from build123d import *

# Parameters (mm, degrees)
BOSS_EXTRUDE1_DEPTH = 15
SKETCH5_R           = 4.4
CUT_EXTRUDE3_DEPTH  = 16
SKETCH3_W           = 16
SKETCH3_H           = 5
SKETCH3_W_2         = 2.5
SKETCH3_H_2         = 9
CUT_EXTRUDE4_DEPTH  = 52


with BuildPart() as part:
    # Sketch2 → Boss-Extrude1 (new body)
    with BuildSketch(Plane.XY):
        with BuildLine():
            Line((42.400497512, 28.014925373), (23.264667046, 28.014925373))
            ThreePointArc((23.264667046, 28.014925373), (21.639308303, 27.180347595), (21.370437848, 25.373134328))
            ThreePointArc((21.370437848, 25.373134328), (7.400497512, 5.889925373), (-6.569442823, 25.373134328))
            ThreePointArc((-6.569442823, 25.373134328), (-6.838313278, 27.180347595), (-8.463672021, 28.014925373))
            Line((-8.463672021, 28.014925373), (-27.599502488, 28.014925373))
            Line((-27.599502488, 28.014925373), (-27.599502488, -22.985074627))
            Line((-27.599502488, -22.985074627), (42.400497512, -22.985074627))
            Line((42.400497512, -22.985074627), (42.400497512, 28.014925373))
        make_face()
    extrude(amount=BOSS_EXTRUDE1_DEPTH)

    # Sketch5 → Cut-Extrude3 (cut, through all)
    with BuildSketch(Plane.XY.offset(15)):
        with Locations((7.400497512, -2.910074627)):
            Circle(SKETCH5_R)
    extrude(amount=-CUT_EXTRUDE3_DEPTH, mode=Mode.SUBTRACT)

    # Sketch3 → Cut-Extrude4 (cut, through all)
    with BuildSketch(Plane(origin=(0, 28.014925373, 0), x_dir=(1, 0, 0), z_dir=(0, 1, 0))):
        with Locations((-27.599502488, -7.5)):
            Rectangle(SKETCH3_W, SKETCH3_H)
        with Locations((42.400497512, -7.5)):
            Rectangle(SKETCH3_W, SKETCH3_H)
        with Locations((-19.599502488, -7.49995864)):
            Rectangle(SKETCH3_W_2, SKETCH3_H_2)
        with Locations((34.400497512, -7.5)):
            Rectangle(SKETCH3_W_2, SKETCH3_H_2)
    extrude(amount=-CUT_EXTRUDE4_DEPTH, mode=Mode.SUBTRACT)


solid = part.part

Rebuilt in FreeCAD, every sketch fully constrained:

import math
import FreeCAD as App
import Part
import Sketcher
from FreeCAD import Vector
Q = App.Units.Quantity

doc = App.newDocument("Part")
body = doc.addObject("PartDesign::Body", "Body")

# Sketch on XY plane
sketch1 = doc.addObject("Sketcher::SketchObject", "Sketch")
body.addObject(sketch1)
sketch1.AttachmentSupport = (doc.XY_Plane, [""])
sketch1.MapMode = "FlatFace"
sketch1.addGeometry(Part.LineSegment(Vector(42.4, 28, 0), Vector(23.3, 28, 0)), False)
sketch1.addGeometry(Part.ArcOfCircle(Part.Circle(Vector(23.3, 26, 0), Vector(0, 0, 1), 2), math.radians(90), math.radians(199)), False)
sketch1.addGeometry(Part.ArcOfCircle(Part.Circle(Vector(7.4, 20.6, 0), Vector(0, 0, 1), 14.8), math.radians(161), math.radians(379)), False)
sketch1.addGeometry(Part.ArcOfCircle(Part.Circle(Vector(-8.5, 26, 0), Vector(0, 0, 1), 2), math.radians(-19), math.radians(90)), False)
sketch1.addGeometry(Part.LineSegment(Vector(-8.5, 28, 0), Vector(-27.6, 28, 0)), False)
sketch1.addGeometry(Part.LineSegment(Vector(-27.6, 28, 0), Vector(-27.6, -23, 0)), False)
sketch1.addGeometry(Part.LineSegment(Vector(-27.6, -23, 0), Vector(42.4, -23, 0)), False)
sketch1.addGeometry(Part.LineSegment(Vector(42.4, -23, 0), Vector(42.4, 28, 0)), False)
sketch1.addConstraint(Sketcher.Constraint("Tangent", 0, 2, 1, 1))
sketch1.addConstraint(Sketcher.Constraint("Tangent", 1, 2, 2, 2))
sketch1.addConstraint(Sketcher.Constraint("Tangent", 2, 1, 3, 1))
sketch1.addConstraint(Sketcher.Constraint("Tangent", 3, 2, 4, 1))
sketch1.addConstraint(Sketcher.Constraint("Coincident", 4, 2, 5, 1))
sketch1.addConstraint(Sketcher.Constraint("Coincident", 5, 2, 6, 1))
sketch1.addConstraint(Sketcher.Constraint("Coincident", 6, 2, 7, 1))
sketch1.addConstraint(Sketcher.Constraint("Coincident", 7, 2, 0, 1))
sketch1.addConstraint(Sketcher.Constraint("Horizontal", 0))
sketch1.addConstraint(Sketcher.Constraint("Horizontal", 4))
sketch1.addConstraint(Sketcher.Constraint("Vertical", 5))
sketch1.addConstraint(Sketcher.Constraint("Horizontal", 6))
sketch1.addConstraint(Sketcher.Constraint("Vertical", 7))
sketch1.addConstraint(Sketcher.Constraint("Equal", 1, 3))
sketch1.addConstraint(Sketcher.Constraint("Horizontal", 1, 3, 3, 3))
sketch1.addConstraint(Sketcher.Constraint("Equal", 0, 4))
sketch1.addConstraint(Sketcher.Constraint("Radius", 1, Q("2 mm")))
sketch1.addConstraint(Sketcher.Constraint("DistanceX", 6, 1, 6, 2, Q("70 mm")))
sketch1.addConstraint(Sketcher.Constraint("DistanceY", 5, 2, 5, 1, Q("51 mm")))
sketch1.addConstraint(Sketcher.Constraint("Radius", 2, Q("14.75 mm")))
sketch1.addConstraint(Sketcher.Constraint("DistanceY", 2, 3, 1, 3, Q("5.375 mm")))
sketch1.addConstraint(Sketcher.Constraint("DistanceX", -1, 1, 1, 3, Q("23.264667 mm")))
sketch1.addConstraint(Sketcher.Constraint("DistanceY", -1, 1, 1, 3, Q("26.014925 mm")))
pad1 = doc.addObject("PartDesign::Pad", "Pad")
body.addObject(pad1)
pad1.Profile = sketch1
pad1.Length = 15

# Sketch on XY plane
sketch2 = doc.addObject("Sketcher::SketchObject", "Sketch001")
body.addObject(sketch2)
sketch2.AttachmentSupport = (doc.XY_Plane, [""])
sketch2.MapMode = "FlatFace"
sketch2.AttachmentOffset = App.Placement(Vector(0, 0, 15), App.Rotation())
sketch2.addGeometry(Part.Circle(Vector(7.4, -2.9, 0), Vector(0, 0, 1), 4.4), False)
sketch2.addConstraint(Sketcher.Constraint("Diameter", 0, Q("8.8 mm")))
sketch2.addConstraint(Sketcher.Constraint("DistanceX", -1, 1, 0, 3, Q("7.400498 mm")))
sketch2.addConstraint(Sketcher.Constraint("DistanceY", 0, 3, -1, 1, Q("2.910075 mm")))
pocket1 = doc.addObject("PartDesign::Pocket", "Pocket")
body.addObject(pocket1)
pocket1.Profile = sketch2
pocket1.Type = "ThroughAll"

# Sketch on XZ plane
sketch3 = doc.addObject("Sketcher::SketchObject", "Sketch002")
body.addObject(sketch3)
sketch3.AttachmentSupport = (doc.XZ_Plane, [""])
sketch3.MapMode = "FlatFace"
sketch3.AttachmentOffset = App.Placement(Vector(0, 0, -28.014925), App.Rotation())
sketch3.addGeometry(Part.LineSegment(Vector(-35.6, 5, 0), Vector(-35.6, 10, 0)), False)
sketch3.addGeometry(Part.LineSegment(Vector(-35.6, 10, 0), Vector(-20.8, 10, 0)), False)
sketch3.addGeometry(Part.LineSegment(Vector(-20.8, 10, 0), Vector(-20.8, 12, 0)), False)
sketch3.addGeometry(Part.LineSegment(Vector(-20.8, 12, 0), Vector(-18.3, 12, 0)), False)
sketch3.addGeometry(Part.LineSegment(Vector(-18.3, 12, 0), Vector(-18.3, 3, 0)), False)
sketch3.addGeometry(Part.LineSegment(Vector(-18.3, 3, 0), Vector(-20.8, 3, 0)), False)
sketch3.addGeometry(Part.LineSegment(Vector(-20.8, 3, 0), Vector(-20.8, 5, 0)), False)
sketch3.addGeometry(Part.LineSegment(Vector(-20.8, 5, 0), Vector(-35.6, 5, 0)), False)
sketch3.addGeometry(Part.LineSegment(Vector(33.2, 3, 0), Vector(33.2, 12, 0)), False)
sketch3.addGeometry(Part.LineSegment(Vector(33.2, 12, 0), Vector(35.7, 12, 0)), False)
sketch3.addGeometry(Part.LineSegment(Vector(35.7, 12, 0), Vector(35.7, 10, 0)), False)
sketch3.addGeometry(Part.LineSegment(Vector(35.7, 10, 0), Vector(50.4, 10, 0)), False)
sketch3.addGeometry(Part.LineSegment(Vector(50.4, 10, 0), Vector(50.4, 5, 0)), False)
sketch3.addGeometry(Part.LineSegment(Vector(50.4, 5, 0), Vector(35.7, 5, 0)), False)
sketch3.addGeometry(Part.LineSegment(Vector(35.7, 5, 0), Vector(35.7, 3, 0)), False)
sketch3.addGeometry(Part.LineSegment(Vector(35.7, 3, 0), Vector(33.2, 3, 0)), False)
sketch3.addConstraint(Sketcher.Constraint("Coincident", 0, 2, 1, 1))
sketch3.addConstraint(Sketcher.Constraint("Coincident", 1, 2, 2, 1))
sketch3.addConstraint(Sketcher.Constraint("Coincident", 2, 2, 3, 1))
sketch3.addConstraint(Sketcher.Constraint("Coincident", 3, 2, 4, 1))
sketch3.addConstraint(Sketcher.Constraint("Coincident", 4, 2, 5, 1))
sketch3.addConstraint(Sketcher.Constraint("Coincident", 5, 2, 6, 1))
sketch3.addConstraint(Sketcher.Constraint("Coincident", 6, 2, 7, 1))
sketch3.addConstraint(Sketcher.Constraint("Coincident", 7, 2, 0, 1))
sketch3.addConstraint(Sketcher.Constraint("Coincident", 8, 2, 9, 1))
sketch3.addConstraint(Sketcher.Constraint("Coincident", 9, 2, 10, 1))
sketch3.addConstraint(Sketcher.Constraint("Coincident", 10, 2, 11, 1))
sketch3.addConstraint(Sketcher.Constraint("Coincident", 11, 2, 12, 1))
sketch3.addConstraint(Sketcher.Constraint("Coincident", 12, 2, 13, 1))
sketch3.addConstraint(Sketcher.Constraint("Coincident", 13, 2, 14, 1))
sketch3.addConstraint(Sketcher.Constraint("Coincident", 14, 2, 15, 1))
sketch3.addConstraint(Sketcher.Constraint("Coincident", 15, 2, 8, 1))
sketch3.addConstraint(Sketcher.Constraint("Vertical", 0))
sketch3.addConstraint(Sketcher.Constraint("Horizontal", 1))
sketch3.addConstraint(Sketcher.Constraint("Vertical", 2))
sketch3.addConstraint(Sketcher.Constraint("Horizontal", 3))
sketch3.addConstraint(Sketcher.Constraint("Vertical", 4))
sketch3.addConstraint(Sketcher.Constraint("Horizontal", 5))
sketch3.addConstraint(Sketcher.Constraint("Vertical", 6))
sketch3.addConstraint(Sketcher.Constraint("Horizontal", 7))
sketch3.addConstraint(Sketcher.Constraint("Vertical", 8))
sketch3.addConstraint(Sketcher.Constraint("Horizontal", 9))
sketch3.addConstraint(Sketcher.Constraint("Vertical", 10))
sketch3.addConstraint(Sketcher.Constraint("Horizontal", 11))
sketch3.addConstraint(Sketcher.Constraint("Vertical", 12))
sketch3.addConstraint(Sketcher.Constraint("Horizontal", 13))
sketch3.addConstraint(Sketcher.Constraint("Vertical", 14))
sketch3.addConstraint(Sketcher.Constraint("Horizontal", 15))
sketch3.addConstraint(Sketcher.Constraint("Horizontal", 1, 2, 10, 2))
sketch3.addConstraint(Sketcher.Constraint("Horizontal", 7, 2, 12, 2))
sketch3.addConstraint(Sketcher.Constraint("Vertical", 2, 2, 5, 2))
sketch3.addConstraint(Sketcher.Constraint("Vertical", 10, 2, 13, 2))
sketch3.addConstraint(Sketcher.Constraint("Equal", 5, 9))
sketch3.addConstraint(Sketcher.Constraint("Equal", 7, 11))
sketch3.addConstraint(Sketcher.Constraint("Equal", 4, 8))
sketch3.addConstraint(Sketcher.Constraint("Equal", 10, 14))
sketch3.addConstraint(Sketcher.Constraint("DistanceY", 0, 1, 0, 2, Q("5 mm")))
sketch3.addConstraint(Sketcher.Constraint("DistanceY", 4, 2, 4, 1, Q("9 mm")))
sketch3.addConstraint(Sketcher.Constraint("DistanceX", 3, 1, 3, 2, Q("2.5 mm")))
sketch3.addConstraint(Sketcher.Constraint("DistanceY", -1, 1, 0, 2, Q("10 mm")))
sketch3.addConstraint(Sketcher.Constraint("DistanceX", 2, 2, 8, 2, Q("54 mm")))
sketch3.addConstraint(Sketcher.Constraint("DistanceX", 1, 1, 1, 2, Q("14.75 mm")))
sketch3.addConstraint(Sketcher.Constraint("DistanceY", 2, 1, 2, 2, Q("1.999959 mm")))
sketch3.addConstraint(Sketcher.Constraint("DistanceX", 0, 2, -1, 1, Q("35.599502 mm")))
pocket2 = doc.addObject("PartDesign::Pocket", "Pocket001")
body.addObject(pocket2)
pocket2.Profile = sketch3
pocket2.Type = "ThroughAll"
pocket2.Reversed = True

doc.recompute()
